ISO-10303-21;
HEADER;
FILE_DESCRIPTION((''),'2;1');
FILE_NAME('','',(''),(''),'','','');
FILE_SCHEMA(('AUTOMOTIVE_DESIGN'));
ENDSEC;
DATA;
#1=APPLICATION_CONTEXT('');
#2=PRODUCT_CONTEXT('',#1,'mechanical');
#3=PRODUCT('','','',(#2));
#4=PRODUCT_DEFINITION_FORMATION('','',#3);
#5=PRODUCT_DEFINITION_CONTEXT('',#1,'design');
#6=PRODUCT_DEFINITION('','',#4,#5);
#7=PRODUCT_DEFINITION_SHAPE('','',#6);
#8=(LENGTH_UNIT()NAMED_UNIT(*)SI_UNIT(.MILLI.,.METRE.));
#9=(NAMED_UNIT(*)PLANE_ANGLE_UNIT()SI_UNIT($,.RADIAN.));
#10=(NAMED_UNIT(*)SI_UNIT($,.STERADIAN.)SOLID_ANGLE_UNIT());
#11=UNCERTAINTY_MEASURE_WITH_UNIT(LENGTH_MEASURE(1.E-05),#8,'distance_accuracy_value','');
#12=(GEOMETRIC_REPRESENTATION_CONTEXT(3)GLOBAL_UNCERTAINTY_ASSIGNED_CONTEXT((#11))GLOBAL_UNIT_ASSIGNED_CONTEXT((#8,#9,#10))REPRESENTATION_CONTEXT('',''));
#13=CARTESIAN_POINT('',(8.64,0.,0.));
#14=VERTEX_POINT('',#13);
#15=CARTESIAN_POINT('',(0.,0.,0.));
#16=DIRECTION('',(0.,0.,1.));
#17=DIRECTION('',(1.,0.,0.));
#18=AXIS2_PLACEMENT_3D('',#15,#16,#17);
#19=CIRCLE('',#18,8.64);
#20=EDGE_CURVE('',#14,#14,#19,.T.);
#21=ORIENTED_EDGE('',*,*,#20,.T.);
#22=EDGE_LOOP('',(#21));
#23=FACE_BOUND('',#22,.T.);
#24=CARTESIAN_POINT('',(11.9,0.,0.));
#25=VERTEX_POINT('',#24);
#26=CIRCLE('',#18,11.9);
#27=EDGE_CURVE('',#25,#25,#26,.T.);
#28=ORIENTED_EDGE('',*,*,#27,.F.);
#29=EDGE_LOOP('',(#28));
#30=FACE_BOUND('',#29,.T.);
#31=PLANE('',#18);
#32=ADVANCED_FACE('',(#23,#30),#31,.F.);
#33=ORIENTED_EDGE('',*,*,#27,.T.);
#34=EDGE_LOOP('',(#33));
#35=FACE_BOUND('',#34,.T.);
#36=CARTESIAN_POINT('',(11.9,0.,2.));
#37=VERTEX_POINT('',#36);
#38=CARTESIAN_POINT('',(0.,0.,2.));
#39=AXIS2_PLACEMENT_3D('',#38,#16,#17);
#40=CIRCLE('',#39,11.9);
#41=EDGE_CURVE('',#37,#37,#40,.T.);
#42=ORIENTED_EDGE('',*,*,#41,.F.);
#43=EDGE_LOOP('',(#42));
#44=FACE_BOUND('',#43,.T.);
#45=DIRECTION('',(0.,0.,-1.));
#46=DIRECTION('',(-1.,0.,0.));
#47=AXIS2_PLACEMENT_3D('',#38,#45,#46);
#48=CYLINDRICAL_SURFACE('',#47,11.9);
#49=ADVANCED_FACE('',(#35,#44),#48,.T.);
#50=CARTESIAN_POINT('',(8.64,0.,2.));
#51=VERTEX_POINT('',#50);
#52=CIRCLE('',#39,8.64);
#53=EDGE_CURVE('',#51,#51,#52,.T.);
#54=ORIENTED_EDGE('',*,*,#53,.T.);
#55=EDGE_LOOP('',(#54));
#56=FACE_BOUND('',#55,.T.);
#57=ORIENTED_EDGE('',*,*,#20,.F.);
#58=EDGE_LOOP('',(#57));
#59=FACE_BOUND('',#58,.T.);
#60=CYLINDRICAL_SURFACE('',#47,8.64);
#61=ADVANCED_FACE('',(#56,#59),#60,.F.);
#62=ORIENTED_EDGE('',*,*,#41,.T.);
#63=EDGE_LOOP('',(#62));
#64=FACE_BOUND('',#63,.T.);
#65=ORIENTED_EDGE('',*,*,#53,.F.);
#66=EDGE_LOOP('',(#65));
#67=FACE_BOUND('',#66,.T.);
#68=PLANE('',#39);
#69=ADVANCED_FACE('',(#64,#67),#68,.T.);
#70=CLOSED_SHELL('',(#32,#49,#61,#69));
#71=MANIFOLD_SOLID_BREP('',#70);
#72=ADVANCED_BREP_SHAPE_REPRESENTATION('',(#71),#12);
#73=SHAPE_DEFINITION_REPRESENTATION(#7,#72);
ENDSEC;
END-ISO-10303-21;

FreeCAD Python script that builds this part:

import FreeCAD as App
import Part
import Sketcher
from FreeCAD import Vector

doc = App.newDocument("Part")
body = doc.addObject("PartDesign::Body", "Body")

# Sketch on XY plane
sketch1 = doc.addObject("Sketcher::SketchObject", "Sketch")
body.addObject(sketch1)
sketch1.AttachmentSupport = (doc.XY_Plane, [""])
sketch1.MapMode = "FlatFace"
sketch1.addGeometry(Part.Circle(Vector(0, 0, 0), Vector(0, 0, 1), 12), False)
sketch1.addGeometry(Part.Circle(Vector(0, 0, 0), Vector(0, 0, 1), 9), False)
sketch1.addConstraint(Sketcher.Constraint("Coincident", 0, 3, -1, 1))
sketch1.addConstraint(Sketcher.Constraint("Coincident", 1, 3, -1, 1))
sketch1.addConstraint(Sketcher.Constraint("Diameter", 0, 23.8))
sketch1.addConstraint(Sketcher.Constraint("Diameter", 1, 17.28))
pad1 = doc.addObject("PartDesign::Pad", "Pad")
body.addObject(pad1)
pad1.Profile = sketch1
pad1.Length = 2

doc.recompute()
